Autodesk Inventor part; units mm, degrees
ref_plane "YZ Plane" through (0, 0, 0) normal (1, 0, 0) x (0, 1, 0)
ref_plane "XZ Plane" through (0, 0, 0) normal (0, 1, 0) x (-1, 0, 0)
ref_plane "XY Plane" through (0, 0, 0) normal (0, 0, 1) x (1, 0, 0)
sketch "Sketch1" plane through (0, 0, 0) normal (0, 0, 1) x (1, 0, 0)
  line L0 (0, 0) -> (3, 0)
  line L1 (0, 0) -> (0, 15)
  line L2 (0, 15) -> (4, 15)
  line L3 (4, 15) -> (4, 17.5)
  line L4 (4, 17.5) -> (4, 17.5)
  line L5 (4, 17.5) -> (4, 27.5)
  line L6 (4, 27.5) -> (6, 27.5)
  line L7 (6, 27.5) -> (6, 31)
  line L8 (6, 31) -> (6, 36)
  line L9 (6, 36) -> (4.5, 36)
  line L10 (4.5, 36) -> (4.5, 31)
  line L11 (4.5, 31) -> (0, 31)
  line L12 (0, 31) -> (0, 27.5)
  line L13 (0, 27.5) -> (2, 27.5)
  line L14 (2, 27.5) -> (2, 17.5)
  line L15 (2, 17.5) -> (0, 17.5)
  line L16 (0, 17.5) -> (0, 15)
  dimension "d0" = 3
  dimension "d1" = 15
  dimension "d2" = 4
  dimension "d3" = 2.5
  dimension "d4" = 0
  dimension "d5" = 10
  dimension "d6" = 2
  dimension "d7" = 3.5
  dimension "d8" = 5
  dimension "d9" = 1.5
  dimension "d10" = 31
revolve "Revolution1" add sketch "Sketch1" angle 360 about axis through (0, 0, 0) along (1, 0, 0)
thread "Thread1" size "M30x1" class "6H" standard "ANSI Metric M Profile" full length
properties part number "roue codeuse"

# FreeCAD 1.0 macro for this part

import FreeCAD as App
import Part
import Sketcher

V = App.Vector
Q = App.Units.Quantity


def add_polygon(sketch, points):
    """Adds a closed chain of lines whose ends are joined by coincident constraints."""
    first, n = sketch.GeometryCount, len(points)
    for a, b in zip(points, points[1:] + points[:1]):
        sketch.addGeometry(Part.LineSegment(App.Vector(*a, 0), App.Vector(*b, 0)), False)
    for i in range(n):
        sketch.addConstraint(Sketcher.Constraint("Coincident", first + i, 2, first + (i + 1) % n, 1))

doc = App.newDocument("Part")
body = doc.addObject("PartDesign::Body", "Body")

# Sketch on XY plane
sketch1 = body.newObject("Sketcher::SketchObject", "Sketch")
sketch1.AttachmentSupport = (doc.getObject("XY_Plane"), [""])
sketch1.MapMode = "FlatFace"
add_polygon(sketch1, [(0, 17.5), (0, 15), (4, 15), (4, 27.5), (6, 27.5), (6, 36), (4.5, 36), (4.5, 31), (0, 31), (0, 27.5), (2, 27.5), (2, 17.5)])  # lines 0-11
sketch1.addConstraint(Sketcher.Constraint("Vertical", 0))
sketch1.addConstraint(Sketcher.Constraint("Horizontal", 1))
sketch1.addConstraint(Sketcher.Constraint("Vertical", 2))
sketch1.addConstraint(Sketcher.Constraint("Horizontal", 3))
sketch1.addConstraint(Sketcher.Constraint("Vertical", 4))
sketch1.addConstraint(Sketcher.Constraint("Horizontal", 5))
sketch1.addConstraint(Sketcher.Constraint("Vertical", 6))
sketch1.addConstraint(Sketcher.Constraint("Horizontal", 7))
sketch1.addConstraint(Sketcher.Constraint("Vertical", 8))
sketch1.addConstraint(Sketcher.Constraint("Horizontal", 9))
sketch1.addConstraint(Sketcher.Constraint("Vertical", 10))
sketch1.addConstraint(Sketcher.Constraint("Horizontal", 11))
sketch1.addConstraint(Sketcher.Constraint("PointOnObject", 0, 2, -2))
sketch1.addConstraint(Sketcher.Constraint("PointOnObject", 7, 2, -2))
sketch1.addConstraint(Sketcher.Constraint("Horizontal", 3, 2, 8, 2))
sketch1.addConstraint(Sketcher.Constraint("Equal", 3, 9))
sketch1.addConstraint(Sketcher.Constraint("DistanceX", 1, 1, 1, 2, Q("4 mm")))
sketch1.addConstraint(Sketcher.Constraint("DistanceX", 3, 1, 3, 2, Q("2 mm")))
sketch1.addConstraint(Sketcher.Constraint("DistanceY", 6, 2, 6, 1, Q("5 mm")))
sketch1.addConstraint(Sketcher.Constraint("DistanceY", 10, 2, 10, 1, Q("10 mm")))
sketch1.addConstraint(Sketcher.Constraint("DistanceX", 5, 2, 5, 1, Q("1.5 mm")))
sketch1.addConstraint(Sketcher.Constraint("DistanceY", 0, 2, 0, 1, Q("2.5 mm")))
sketch1.addConstraint(Sketcher.Constraint("DistanceY", 8, 2, 8, 1, Q("3.5 mm")))
sketch1.addConstraint(Sketcher.Constraint("DistanceY", -1, 1, 0, 2, Q("15 mm")))
revolution = body.newObject("PartDesign::Revolution", "Revolution")
revolution.Profile = sketch1
revolution.ReferenceAxis = (sketch1, ["H_Axis"])
revolution.Angle = 360

doc.recompute()
